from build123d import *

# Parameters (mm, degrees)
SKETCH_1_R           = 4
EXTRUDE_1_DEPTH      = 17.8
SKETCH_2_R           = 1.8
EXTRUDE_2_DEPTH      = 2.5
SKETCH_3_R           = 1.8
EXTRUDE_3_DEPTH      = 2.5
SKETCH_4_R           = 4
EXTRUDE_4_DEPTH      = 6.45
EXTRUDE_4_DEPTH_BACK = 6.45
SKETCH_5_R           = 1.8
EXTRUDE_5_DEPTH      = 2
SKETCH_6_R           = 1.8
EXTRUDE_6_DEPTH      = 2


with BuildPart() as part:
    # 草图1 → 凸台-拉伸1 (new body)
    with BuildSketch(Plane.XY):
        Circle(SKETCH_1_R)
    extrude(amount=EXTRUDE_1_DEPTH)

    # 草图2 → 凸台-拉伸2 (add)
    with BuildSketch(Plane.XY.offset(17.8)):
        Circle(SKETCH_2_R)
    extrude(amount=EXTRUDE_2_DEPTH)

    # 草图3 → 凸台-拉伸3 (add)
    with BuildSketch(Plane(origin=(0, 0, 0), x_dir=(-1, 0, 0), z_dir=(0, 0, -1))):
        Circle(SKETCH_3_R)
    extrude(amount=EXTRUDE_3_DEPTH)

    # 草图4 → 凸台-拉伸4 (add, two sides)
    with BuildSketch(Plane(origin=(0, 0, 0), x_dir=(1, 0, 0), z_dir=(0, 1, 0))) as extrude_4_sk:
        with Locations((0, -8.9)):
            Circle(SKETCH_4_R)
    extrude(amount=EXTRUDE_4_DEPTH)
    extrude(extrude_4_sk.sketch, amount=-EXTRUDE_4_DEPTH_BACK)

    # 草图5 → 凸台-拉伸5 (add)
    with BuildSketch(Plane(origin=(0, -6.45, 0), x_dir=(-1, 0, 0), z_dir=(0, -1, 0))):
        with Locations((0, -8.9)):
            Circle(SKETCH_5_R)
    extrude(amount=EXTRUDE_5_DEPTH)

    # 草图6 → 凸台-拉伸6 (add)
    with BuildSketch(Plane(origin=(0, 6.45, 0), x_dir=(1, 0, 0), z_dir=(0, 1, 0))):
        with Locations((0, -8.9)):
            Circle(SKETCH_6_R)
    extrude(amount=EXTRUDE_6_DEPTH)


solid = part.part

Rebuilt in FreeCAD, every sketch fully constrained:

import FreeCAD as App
import Part
import Sketcher
Q = App.Units.Quantity

doc = App.newDocument("Part")
body = doc.addObject("PartDesign::Body", "Body")

# Sketch on XY plane
sketch1 = body.newObject("Sketcher::SketchObject", "Sketch")
sketch1.AttachmentSupport = (doc.getObject("XY_Plane"), [""])
sketch1.MapMode = "FlatFace"
sketch1.addGeometry(Part.Circle(App.Vector(0, 0, 0), App.Vector(0, 0, 1), 4), False)
sketch1.addConstraint([
    Sketcher.Constraint("Coincident", 0, 3, -1, 1),
    Sketcher.Constraint("Diameter", 0, Q("8 mm")),
])
pad1 = body.newObject("PartDesign::Pad", "Pad")
pad1.Profile = sketch1
pad1.Length = 17.8

# Sketch on XY plane
sketch2 = body.newObject("Sketcher::SketchObject", "Sketch001")
sketch2.AttachmentSupport = (doc.getObject("XY_Plane"), [""])
sketch2.MapMode = "FlatFace"
sketch2.AttachmentOffset = App.Placement(App.Vector(0, 0, 17.8), App.Rotation())
sketch2.addGeometry(Part.Circle(App.Vector(0, 0, 0), App.Vector(0, 0, 1), 1.8), False)
sketch2.addConstraint([
    Sketcher.Constraint("Coincident", 0, 3, -1, 1),
    Sketcher.Constraint("Diameter", 0, Q("3.6 mm")),
])
pad2 = body.newObject("PartDesign::Pad", "Pad001")
pad2.Profile = sketch2
pad2.Length = 2.5

# Sketch on XY plane
sketch3 = body.newObject("Sketcher::SketchObject", "Sketch002")
sketch3.AttachmentSupport = (doc.getObject("XY_Plane"), [""])
sketch3.MapMode = "FlatFace"
sketch3.addGeometry(Part.Circle(App.Vector(0, 0, 0), App.Vector(0, 0, 1), 1.8), False)
sketch3.addConstraint([
    Sketcher.Constraint("Coincident", 0, 3, -1, 1),
    Sketcher.Constraint("Diameter", 0, Q("3.6 mm")),
])
pad3 = body.newObject("PartDesign::Pad", "Pad002")
pad3.Profile = sketch3
pad3.Length = 2.5
pad3.Reversed = True

# Sketch on XZ plane
sketch4 = body.newObject("Sketcher::SketchObject", "Sketch003")
sketch4.AttachmentSupport = (doc.getObject("XZ_Plane"), [""])
sketch4.MapMode = "FlatFace"
sketch4.addGeometry(Part.Circle(App.Vector(0, 8.9, 0), App.Vector(0, 0, 1), 4), False)
sketch4.addConstraint([
    Sketcher.Constraint("PointOnObject", 0, 3, -2),
    Sketcher.Constraint("Diameter", 0, Q("8 mm")),
    Sketcher.Constraint("DistanceY", -1, 1, 0, 3, Q("8.9 mm")),
])
pad4 = body.newObject("PartDesign::Pad", "Pad003")
pad4.Profile = sketch4
pad4.Type = "TwoLengths"
pad4.Length = 6.45
pad4.Length2 = 6.45
pad4.Reversed = True

# Sketch on XZ plane
sketch5 = body.newObject("Sketcher::SketchObject", "Sketch004")
sketch5.AttachmentSupport = (doc.getObject("XZ_Plane"), [""])
sketch5.MapMode = "FlatFace"
sketch5.AttachmentOffset = App.Placement(App.Vector(0, 0, 6.45), App.Rotation())
sketch5.addGeometry(Part.Circle(App.Vector(0, 8.9, 0), App.Vector(0, 0, 1), 1.8), False)
sketch5.addConstraint([
    Sketcher.Constraint("PointOnObject", 0, 3, -2),
    Sketcher.Constraint("Diameter", 0, Q("3.6 mm")),
    Sketcher.Constraint("DistanceY", -1, 1, 0, 3, Q("8.9 mm")),
])
pad5 = body.newObject("PartDesign::Pad", "Pad004")
pad5.Profile = sketch5
pad5.Length = 2

# Sketch on XZ plane
sketch6 = body.newObject("Sketcher::SketchObject", "Sketch005")
sketch6.AttachmentSupport = (doc.getObject("XZ_Plane"), [""])
sketch6.MapMode = "FlatFace"
sketch6.AttachmentOffset = App.Placement(App.Vector(0, 0, -6.45), App.Rotation())
sketch6.addGeometry(Part.Circle(App.Vector(0, 8.9, 0), App.Vector(0, 0, 1), 1.8), False)
sketch6.addConstraint([
    Sketcher.Constraint("PointOnObject", 0, 3, -2),
    Sketcher.Constraint("Diameter", 0, Q("3.6 mm")),
    Sketcher.Constraint("DistanceY", -1, 1, 0, 3, Q("8.9 mm")),
])
pad6 = body.newObject("PartDesign::Pad", "Pad005")
pad6.Profile = sketch6
pad6.Length = 2
pad6.Reversed = True

doc.recompute()
